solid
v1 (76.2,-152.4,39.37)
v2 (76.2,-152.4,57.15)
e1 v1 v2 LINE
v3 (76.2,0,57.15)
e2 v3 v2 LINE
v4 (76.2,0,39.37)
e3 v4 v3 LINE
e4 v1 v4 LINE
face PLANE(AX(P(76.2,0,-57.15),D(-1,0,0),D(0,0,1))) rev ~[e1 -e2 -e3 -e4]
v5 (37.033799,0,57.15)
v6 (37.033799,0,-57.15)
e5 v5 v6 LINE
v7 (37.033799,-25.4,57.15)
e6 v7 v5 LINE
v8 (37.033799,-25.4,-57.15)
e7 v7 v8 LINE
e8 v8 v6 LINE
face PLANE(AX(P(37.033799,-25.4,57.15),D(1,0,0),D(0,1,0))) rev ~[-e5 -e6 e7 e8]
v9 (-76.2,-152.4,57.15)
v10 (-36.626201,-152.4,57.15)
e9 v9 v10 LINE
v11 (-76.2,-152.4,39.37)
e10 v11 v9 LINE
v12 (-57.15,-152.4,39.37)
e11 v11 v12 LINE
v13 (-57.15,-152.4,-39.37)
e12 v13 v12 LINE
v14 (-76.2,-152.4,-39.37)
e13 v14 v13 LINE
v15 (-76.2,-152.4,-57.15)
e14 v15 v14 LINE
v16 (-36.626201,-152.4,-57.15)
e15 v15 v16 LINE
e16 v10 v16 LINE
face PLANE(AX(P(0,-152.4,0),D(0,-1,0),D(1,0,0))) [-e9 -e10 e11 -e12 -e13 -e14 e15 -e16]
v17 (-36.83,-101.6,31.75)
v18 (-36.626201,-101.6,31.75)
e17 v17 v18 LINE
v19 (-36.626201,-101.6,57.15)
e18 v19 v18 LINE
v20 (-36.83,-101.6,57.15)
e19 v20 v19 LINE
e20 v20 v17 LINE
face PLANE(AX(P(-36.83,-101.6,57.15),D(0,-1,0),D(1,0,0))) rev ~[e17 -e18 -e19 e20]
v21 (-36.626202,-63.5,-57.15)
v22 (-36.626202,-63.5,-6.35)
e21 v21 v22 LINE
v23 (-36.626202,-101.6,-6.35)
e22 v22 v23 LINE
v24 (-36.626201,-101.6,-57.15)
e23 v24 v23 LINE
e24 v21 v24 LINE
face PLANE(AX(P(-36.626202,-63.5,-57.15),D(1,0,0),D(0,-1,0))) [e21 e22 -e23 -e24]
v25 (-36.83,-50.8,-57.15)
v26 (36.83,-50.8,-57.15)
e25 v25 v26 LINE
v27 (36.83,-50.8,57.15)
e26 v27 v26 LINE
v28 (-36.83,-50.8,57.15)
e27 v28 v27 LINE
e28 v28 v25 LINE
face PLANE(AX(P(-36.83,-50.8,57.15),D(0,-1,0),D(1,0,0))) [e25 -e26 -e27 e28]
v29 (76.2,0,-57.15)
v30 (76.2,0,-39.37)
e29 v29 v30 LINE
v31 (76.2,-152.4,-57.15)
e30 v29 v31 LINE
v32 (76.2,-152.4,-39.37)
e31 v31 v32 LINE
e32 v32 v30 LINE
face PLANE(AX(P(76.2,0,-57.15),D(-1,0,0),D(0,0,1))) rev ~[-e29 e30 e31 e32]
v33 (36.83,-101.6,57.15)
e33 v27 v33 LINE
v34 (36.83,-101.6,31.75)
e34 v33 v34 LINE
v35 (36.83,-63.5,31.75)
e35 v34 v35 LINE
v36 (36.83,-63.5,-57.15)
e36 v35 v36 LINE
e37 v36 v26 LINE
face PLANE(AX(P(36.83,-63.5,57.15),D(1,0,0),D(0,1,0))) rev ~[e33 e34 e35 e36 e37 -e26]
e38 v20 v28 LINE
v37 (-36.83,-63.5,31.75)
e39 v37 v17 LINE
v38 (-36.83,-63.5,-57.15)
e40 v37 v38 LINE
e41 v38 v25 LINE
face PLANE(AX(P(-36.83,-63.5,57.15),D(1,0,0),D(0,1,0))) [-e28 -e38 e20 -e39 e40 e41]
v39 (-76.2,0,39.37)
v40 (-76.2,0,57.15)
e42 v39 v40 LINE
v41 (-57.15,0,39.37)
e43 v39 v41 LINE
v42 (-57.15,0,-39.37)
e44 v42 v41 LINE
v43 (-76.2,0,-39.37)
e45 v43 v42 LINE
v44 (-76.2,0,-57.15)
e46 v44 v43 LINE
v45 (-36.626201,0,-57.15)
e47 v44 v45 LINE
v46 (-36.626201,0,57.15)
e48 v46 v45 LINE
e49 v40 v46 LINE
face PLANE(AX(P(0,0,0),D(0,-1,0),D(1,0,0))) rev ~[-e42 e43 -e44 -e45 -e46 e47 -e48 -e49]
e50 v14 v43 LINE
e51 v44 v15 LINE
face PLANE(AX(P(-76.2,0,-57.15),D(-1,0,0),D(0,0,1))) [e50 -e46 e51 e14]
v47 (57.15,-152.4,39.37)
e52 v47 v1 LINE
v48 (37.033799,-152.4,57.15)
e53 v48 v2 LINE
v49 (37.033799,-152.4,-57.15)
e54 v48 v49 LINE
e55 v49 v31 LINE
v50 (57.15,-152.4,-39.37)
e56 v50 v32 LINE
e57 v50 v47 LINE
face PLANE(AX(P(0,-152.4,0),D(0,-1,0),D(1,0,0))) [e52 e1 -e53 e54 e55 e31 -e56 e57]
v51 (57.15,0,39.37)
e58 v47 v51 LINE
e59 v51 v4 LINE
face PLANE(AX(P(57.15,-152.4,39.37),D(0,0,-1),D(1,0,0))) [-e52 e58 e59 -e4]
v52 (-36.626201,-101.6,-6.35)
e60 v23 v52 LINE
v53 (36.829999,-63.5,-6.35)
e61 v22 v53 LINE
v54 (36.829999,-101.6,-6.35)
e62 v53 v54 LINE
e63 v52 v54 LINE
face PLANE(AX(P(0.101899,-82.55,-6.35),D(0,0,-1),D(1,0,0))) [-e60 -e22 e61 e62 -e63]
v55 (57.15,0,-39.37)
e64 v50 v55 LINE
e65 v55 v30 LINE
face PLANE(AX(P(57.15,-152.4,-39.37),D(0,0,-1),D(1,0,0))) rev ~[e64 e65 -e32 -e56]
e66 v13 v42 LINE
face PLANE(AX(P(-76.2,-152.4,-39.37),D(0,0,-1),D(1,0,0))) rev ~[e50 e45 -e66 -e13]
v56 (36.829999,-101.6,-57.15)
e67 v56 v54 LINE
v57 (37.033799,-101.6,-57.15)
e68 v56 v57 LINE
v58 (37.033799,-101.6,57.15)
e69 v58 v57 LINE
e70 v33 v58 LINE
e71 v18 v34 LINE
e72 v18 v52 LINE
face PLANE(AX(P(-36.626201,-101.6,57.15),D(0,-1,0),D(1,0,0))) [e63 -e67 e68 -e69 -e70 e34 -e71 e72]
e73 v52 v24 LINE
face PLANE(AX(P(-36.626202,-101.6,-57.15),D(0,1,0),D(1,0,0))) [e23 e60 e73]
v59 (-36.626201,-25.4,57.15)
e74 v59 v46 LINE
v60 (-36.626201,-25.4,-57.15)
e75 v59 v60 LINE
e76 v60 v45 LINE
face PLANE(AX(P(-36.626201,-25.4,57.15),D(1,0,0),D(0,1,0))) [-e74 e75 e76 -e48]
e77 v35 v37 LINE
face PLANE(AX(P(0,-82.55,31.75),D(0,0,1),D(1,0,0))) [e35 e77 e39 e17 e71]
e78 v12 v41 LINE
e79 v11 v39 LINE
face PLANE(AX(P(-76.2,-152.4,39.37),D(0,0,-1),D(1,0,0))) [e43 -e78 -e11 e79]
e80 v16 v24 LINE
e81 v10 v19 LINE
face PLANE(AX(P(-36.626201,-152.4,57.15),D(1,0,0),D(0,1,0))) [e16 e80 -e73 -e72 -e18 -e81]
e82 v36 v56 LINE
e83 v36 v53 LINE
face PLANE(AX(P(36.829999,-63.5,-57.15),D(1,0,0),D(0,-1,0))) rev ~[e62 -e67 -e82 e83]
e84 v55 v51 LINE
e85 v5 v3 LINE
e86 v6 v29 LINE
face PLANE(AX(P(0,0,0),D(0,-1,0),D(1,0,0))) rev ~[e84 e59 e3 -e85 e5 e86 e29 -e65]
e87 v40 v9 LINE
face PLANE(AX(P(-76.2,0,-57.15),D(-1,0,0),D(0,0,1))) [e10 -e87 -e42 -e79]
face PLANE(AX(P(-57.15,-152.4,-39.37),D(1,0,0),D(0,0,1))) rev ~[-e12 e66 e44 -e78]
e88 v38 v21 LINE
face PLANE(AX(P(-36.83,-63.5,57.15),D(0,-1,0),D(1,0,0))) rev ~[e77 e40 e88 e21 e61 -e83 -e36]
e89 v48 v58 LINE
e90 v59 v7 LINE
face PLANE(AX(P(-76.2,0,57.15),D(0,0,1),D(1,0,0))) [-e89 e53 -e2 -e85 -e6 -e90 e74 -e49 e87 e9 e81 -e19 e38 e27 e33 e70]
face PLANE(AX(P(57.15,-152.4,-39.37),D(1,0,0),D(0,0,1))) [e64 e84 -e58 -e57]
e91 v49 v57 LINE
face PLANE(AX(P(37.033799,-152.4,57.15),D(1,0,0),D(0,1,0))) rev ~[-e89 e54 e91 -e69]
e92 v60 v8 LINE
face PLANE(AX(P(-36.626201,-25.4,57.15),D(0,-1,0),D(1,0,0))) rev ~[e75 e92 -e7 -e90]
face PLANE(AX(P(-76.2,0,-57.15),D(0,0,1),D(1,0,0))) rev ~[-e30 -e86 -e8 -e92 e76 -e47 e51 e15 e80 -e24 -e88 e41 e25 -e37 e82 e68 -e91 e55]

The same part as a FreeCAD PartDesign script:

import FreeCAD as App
import Part
import Sketcher
Q = App.Units.Quantity

doc = App.newDocument("Part")
body = doc.addObject("PartDesign::Body", "Body")

sketch1 = body.newObject("Sketcher::SketchObject", "Sketch")
sketch1.AttachmentSupport = (doc.getObject("XZ_Plane"), [""])
sketch1.MapMode = "FlatFace"
sketch1.addGeometry([
    Part.LineSegment(App.Vector(-76, 57, 0), App.Vector(-76, -57, 0)),
    Part.LineSegment(App.Vector(-76, -57, 0), App.Vector(76, -57, 0)),
    Part.LineSegment(App.Vector(76, -57, 0), App.Vector(76, 57, 0)),
    Part.LineSegment(App.Vector(76, 57, 0), App.Vector(-76, 57, 0)),
], False)
sketch1.addConstraint([
    Sketcher.Constraint("Coincident", 0, 2, 1, 1),
    Sketcher.Constraint("Coincident", 1, 2, 2, 1),
    Sketcher.Constraint("Coincident", 2, 2, 3, 1),
    Sketcher.Constraint("Coincident", 3, 2, 0, 1),
    Sketcher.Constraint("Vertical", 0),
    Sketcher.Constraint("Horizontal", 1),
    Sketcher.Constraint("Vertical", 2),
    Sketcher.Constraint("Horizontal", 3),
    Sketcher.Constraint("Symmetric", 0, 2, 2, 2, -1, 1),
    Sketcher.Constraint("DistanceX", 1, 1, 1, 2, Q("6 in")),
    Sketcher.Constraint("DistanceY", 0, 2, 0, 1, Q("4.5 in")),
])
pad1 = body.newObject("PartDesign::Pad", "Pad")
pad1.Profile = sketch1
pad1.Length = Q("6 in")

sketch2 = body.newObject("Sketcher::SketchObject", "Sketch001")
sketch2.AttachmentSupport = (doc.getObject("XZ_Plane"), [""])
sketch2.MapMode = "FlatFace"
sketch2.AttachmentOffset = App.Placement(App.Vector(0, 0, 6 * 25.4), App.Rotation())
sketch2.addGeometry([
    Part.LineSegment(App.Vector(-76, 39, 0), App.Vector(-76, -39, 0)),
    Part.LineSegment(App.Vector(-76, -39, 0), App.Vector(-57, -39, 0)),
    Part.LineSegment(App.Vector(-57, -39, 0), App.Vector(-57, 39, 0)),
    Part.LineSegment(App.Vector(-57, 39, 0), App.Vector(-76, 39, 0)),
], False)
sketch2.addConstraint([
    Sketcher.Constraint("Coincident", 0, 2, 1, 1),
    Sketcher.Constraint("Coincident", 1, 2, 2, 1),
    Sketcher.Constraint("Coincident", 2, 2, 3, 1),
    Sketcher.Constraint("Coincident", 3, 2, 0, 1),
    Sketcher.Constraint("Vertical", 0),
    Sketcher.Constraint("Horizontal", 1),
    Sketcher.Constraint("Vertical", 2),
    Sketcher.Constraint("Horizontal", 3),
    Sketcher.Constraint("DistanceY", 0, 2, 0, 1, Q("3.1 in")),
    Sketcher.Constraint("DistanceX", 0, 2, -1, 1, Q("3 in")),
    Sketcher.Constraint("DistanceX", 1, 1, 1, 2, Q("0.75 in")),
    Sketcher.Constraint("DistanceY", 0, 2, -1, 1, Q("1.55 in")),
])
pocket1 = body.newObject("PartDesign::Pocket", "Pocket")
pocket1.Profile = sketch2
pocket1.Type = "ThroughAll"

sketch3 = body.newObject("Sketcher::SketchObject", "Sketch002")
sketch3.AttachmentSupport = (doc.getObject("XZ_Plane"), [""])
sketch3.MapMode = "FlatFace"
sketch3.AttachmentOffset = App.Placement(App.Vector(0, 0, 6 * 25.4), App.Rotation())
sketch3.addGeometry([
    Part.LineSegment(App.Vector(57, 39, 0), App.Vector(57, -39, 0)),
    Part.LineSegment(App.Vector(57, -39, 0), App.Vector(76, -39, 0)),
    Part.LineSegment(App.Vector(76, -39, 0), App.Vector(76, 39, 0)),
    Part.LineSegment(App.Vector(76, 39, 0), App.Vector(57, 39, 0)),
], False)
sketch3.addConstraint([
    Sketcher.Constraint("Coincident", 0, 2, 1, 1),
    Sketcher.Constraint("Coincident", 1, 2, 2, 1),
    Sketcher.Constraint("Coincident", 2, 2, 3, 1),
    Sketcher.Constraint("Coincident", 3, 2, 0, 1),
    Sketcher.Constraint("Vertical", 0),
    Sketcher.Constraint("Horizontal", 1),
    Sketcher.Constraint("Vertical", 2),
    Sketcher.Constraint("Horizontal", 3),
    Sketcher.Constraint("DistanceY", 0, 2, 0, 1, Q("3.1 in")),
    Sketcher.Constraint("DistanceX", -1, 1, 1, 2, Q("3 in")),
    Sketcher.Constraint("DistanceX", 1, 1, 1, 2, Q("0.75 in")),
    Sketcher.Constraint("DistanceY", 0, 2, -1, 1, Q("1.55 in")),
])
pocket2 = body.newObject("PartDesign::Pocket", "Pocket001")
pocket2.Profile = sketch3
pocket2.Type = "ThroughAll"

sketch4 = body.newObject("Sketcher::SketchObject", "Sketch003")
sketch4.AttachmentSupport = (doc.getObject("XY_Plane"), [""])
sketch4.MapMode = "FlatFace"
sketch4.AttachmentOffset = App.Placement(App.Vector(0, 0, 2.25 * 25.4), App.Rotation())
sketch4.addGeometry([
    Part.LineSegment(App.Vector(-37, -102, 0), App.Vector(-37, -152, 0)),
    Part.LineSegment(App.Vector(-37, -152, 0), App.Vector(37, -152, 0)),
    Part.LineSegment(App.Vector(37, -152, 0), App.Vector(37, -102, 0)),
    Part.LineSegment(App.Vector(37, -102, 0), App.Vector(-37, -102, 0)),
    Part.LineSegment(App.Vector(-37, 0, 0), App.Vector(-37, -25, 0)),
    Part.LineSegment(App.Vector(-37, -25, 0), App.Vector(37, -25, 0)),
    Part.LineSegment(App.Vector(37, -25, 0), App.Vector(37, 0, 0)),
    Part.LineSegment(App.Vector(37, 0, 0), App.Vector(-37, 0, 0)),
], False)
sketch4.addConstraint([
    Sketcher.Constraint("Coincident", 0, 2, 1, 1),
    Sketcher.Constraint("Coincident", 1, 2, 2, 1),
    Sketcher.Constraint("Coincident", 2, 2, 3, 1),
    Sketcher.Constraint("Coincident", 3, 2, 0, 1),
    Sketcher.Constraint("Coincident", 4, 2, 5, 1),
    Sketcher.Constraint("Coincident", 5, 2, 6, 1),
    Sketcher.Constraint("Coincident", 6, 2, 7, 1),
    Sketcher.Constraint("Coincident", 7, 2, 4, 1),
    Sketcher.Constraint("Vertical", 0),
    Sketcher.Constraint("Horizontal", 1),
    Sketcher.Constraint("Vertical", 2),
    Sketcher.Constraint("Horizontal", 3),
    Sketcher.Constraint("Vertical", 4),
    Sketcher.Constraint("Horizontal", 5),
    Sketcher.Constraint("Vertical", 6),
    Sketcher.Constraint("Horizontal", 7),
    Sketcher.Constraint("PointOnObject", 6, 2, -1),
    Sketcher.Constraint("Vertical", 3, 2, 4, 2),
    Sketcher.Constraint("Vertical", 2, 2, 5, 2),
    Sketcher.Constraint("DistanceY", 0, 2, 0, 1, Q("2 in")),
    Sketcher.Constraint("DistanceY", 4, 2, 4, 1, Q("1 in")),
    Sketcher.Constraint("DistanceX", 1, 1, 1, 2, Q("2.9 in")),
    Sketcher.Constraint("DistanceY", 0, 2, -1, 1, Q("6 in")),
    Sketcher.Constraint("DistanceX", 0, 2, -1, 1, 36.626201),
])
pocket3 = body.newObject("PartDesign::Pocket", "Pocket002")
pocket3.Profile = sketch4
pocket3.Type = "ThroughAll"

sketch5 = body.newObject("Sketcher::SketchObject", "Sketch004")
sketch5.AttachmentSupport = (doc.getObject("XY_Plane"), [""])
sketch5.MapMode = "FlatFace"
sketch5.AttachmentOffset = App.Placement(App.Vector(0, 0, 2.25 * 25.4), App.Rotation())
sketch5.addGeometry([
    Part.LineSegment(App.Vector(-37, -51, 0), App.Vector(-37, -64, 0)),
    Part.LineSegment(App.Vector(-37, -64, 0), App.Vector(37, -64, 0)),
    Part.LineSegment(App.Vector(37, -64, 0), App.Vector(37, -51, 0)),
    Part.LineSegment(App.Vector(37, -51, 0), App.Vector(-37, -51, 0)),
], False)
sketch5.addConstraint([
    Sketcher.Constraint("Coincident", 0, 2, 1, 1),
    Sketcher.Constraint("Coincident", 1, 2, 2, 1),
    Sketcher.Constraint("Coincident", 2, 2, 3, 1),
    Sketcher.Constraint("Coincident", 3, 2, 0, 1),
    Sketcher.Constraint("Vertical", 0),
    Sketcher.Constraint("Horizontal", 1),
    Sketcher.Constraint("Vertical", 2),
    Sketcher.Constraint("Horizontal", 3),
    Sketcher.Constraint("DistanceX", 1, 1, 1, 2, Q("2.9 in")),
    Sketcher.Constraint("DistanceY", 0, 2, 0, 1, Q("0.5 in")),
    Sketcher.Constraint("DistanceY", 2, 2, -1, 1, Q("2 in")),
    Sketcher.Constraint("DistanceX", 0, 2, -1, 1, Q("1.45 in")),
])
pocket4 = body.newObject("PartDesign::Pocket", "Pocket003")
pocket4.Profile = sketch5
pocket4.Type = "ThroughAll"

sketch6 = body.newObject("Sketcher::SketchObject", "Sketch005")
sketch6.AttachmentSupport = (doc.getObject("XY_Plane"), [""])
sketch6.MapMode = "FlatFace"
sketch6.AttachmentOffset = App.Placement(App.Vector(0, 0, 2.25 * 25.4), App.Rotation())
sketch6.addGeometry([
    Part.LineSegment(App.Vector(-37, -64, 0), App.Vector(-37, -102, 0)),
    Part.LineSegment(App.Vector(-37, -102, 0), App.Vector(37, -102, 0)),
    Part.LineSegment(App.Vector(37, -102, 0), App.Vector(37, -64, 0)),
    Part.LineSegment(App.Vector(37, -64, 0), App.Vector(-37, -64, 0)),
], False)
sketch6.addConstraint([
    Sketcher.Constraint("Coincident", 0, 2, 1, 1),
    Sketcher.Constraint("Coincident", 1, 2, 2, 1),
    Sketcher.Constraint("Coincident", 2, 2, 3, 1),
    Sketcher.Constraint("Coincident", 3, 2, 0, 1),
    Sketcher.Constraint("Vertical", 0),
    Sketcher.Constraint("Horizontal", 1),
    Sketcher.Constraint("Vertical", 2),
    Sketcher.Constraint("Horizontal", 3),
    Sketcher.Constraint("DistanceX", 1, 1, 1, 2, Q("2.9 in")),
    Sketcher.Constraint("DistanceY", 0, 2, 0, 1, Q("1.5 in")),
    Sketcher.Constraint("DistanceY", 0, 2, -1, 1, Q("4 in")),
    Sketcher.Constraint("DistanceX", 0, 2, -1, 1, Q("1.45 in")),
])
pocket5 = body.newObject("PartDesign::Pocket", "Pocket004")
pocket5.Profile = sketch6
pocket5.Length = Q("1 in")

sketch7 = body.newObject("Sketcher::SketchObject", "Sketch006")
sketch7.AttachmentSupport = (doc.getObject("XY_Plane"), [""])
sketch7.MapMode = "FlatFace"
sketch7.AttachmentOffset = App.Placement(App.Vector(0, 0, -2.25 * 25.4), App.Rotation())
sketch7.addGeometry([
    Part.LineSegment(App.Vector(-37, -102, 0), App.Vector(-37, -64, 0)),
    Part.LineSegment(App.Vector(-37, -64, 0), App.Vector(37, -64, 0)),
    Part.LineSegment(App.Vector(37, -64, 0), App.Vector(37, -102, 0)),
    Part.LineSegment(App.Vector(37, -102, 0), App.Vector(-37, -102, 0)),
], False)
sketch7.addConstraint([
    Sketcher.Constraint("Coincident", 0, 2, 1, 1),
    Sketcher.Constraint("Coincident", 1, 2, 2, 1),
    Sketcher.Constraint("Coincident", 2, 2, 3, 1),
    Sketcher.Constraint("Coincident", 3, 2, 0, 1),
    Sketcher.Constraint("Vertical", 0),
    Sketcher.Constraint("Horizontal", 1),
    Sketcher.Constraint("Vertical", 2),
    Sketcher.Constraint("Horizontal", 3),
    Sketcher.Constraint("DistanceY", 0, 1, 0, 2, Q("1.5 in")),
    Sketcher.Constraint("DistanceY", 2, 2, -1, 1, Q("4 in")),
    Sketcher.Constraint("DistanceX", -1, 1, 1, 2, Q("1.45 in")),
    Sketcher.Constraint("DistanceX", 1, 1, 1, 2, 73.456201),
])
pocket6 = body.newObject("PartDesign::Pocket", "Pocket005")
pocket6.Profile = sketch7
pocket6.Length = Q("2 in")
pocket6.Reversed = True

doc.recompute()
